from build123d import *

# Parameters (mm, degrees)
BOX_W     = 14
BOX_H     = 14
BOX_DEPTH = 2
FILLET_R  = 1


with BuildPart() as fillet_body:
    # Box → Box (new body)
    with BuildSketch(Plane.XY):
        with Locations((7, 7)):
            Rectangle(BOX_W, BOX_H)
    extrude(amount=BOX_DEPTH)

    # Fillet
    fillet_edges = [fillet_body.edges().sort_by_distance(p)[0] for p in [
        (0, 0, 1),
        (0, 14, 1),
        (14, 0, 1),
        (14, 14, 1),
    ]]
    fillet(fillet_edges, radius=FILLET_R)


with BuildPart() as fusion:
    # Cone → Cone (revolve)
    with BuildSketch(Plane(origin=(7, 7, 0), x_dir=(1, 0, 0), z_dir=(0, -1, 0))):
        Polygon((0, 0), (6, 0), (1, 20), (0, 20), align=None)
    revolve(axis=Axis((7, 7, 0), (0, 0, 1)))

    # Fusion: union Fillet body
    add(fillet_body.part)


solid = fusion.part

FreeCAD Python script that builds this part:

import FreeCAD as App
import Part
import Sketcher

V = App.Vector


def edges_at(feature, points):
    """Names of the edges that pass closest to the given points."""
    edges = feature.Shape.Edges
    near = lambda p: min(range(len(edges)), key=lambda i: edges[i].distToShape(Part.Vertex(*p))[0])
    return sorted({f"Edge{near(p) + 1}" for p in points})


def add_polygon(sketch, points):
    """Adds a closed chain of lines whose ends are joined by coincident constraints."""
    first, n = sketch.GeometryCount, len(points)
    for a, b in zip(points, points[1:] + points[:1]):
        sketch.addGeometry(Part.LineSegment(App.Vector(*a, 0), App.Vector(*b, 0)), False)
    for i in range(n):
        sketch.addConstraint(Sketcher.Constraint("Coincident", first + i, 2, first + (i + 1) % n, 1))

doc = App.newDocument("Part")
body = doc.addObject("PartDesign::Body", "Body")

sketch1 = body.newObject("Sketcher::SketchObject", "Sketch")
sketch1.AttachmentSupport = (doc.getObject("XY_Plane"), [""])
sketch1.MapMode = "FlatFace"
add_polygon(sketch1, [(0, 14), (0, 0), (14, 0), (14, 14)])
sketch1.addConstraint(Sketcher.Constraint("Vertical", 0))
sketch1.addConstraint(Sketcher.Constraint("Horizontal", 1))
sketch1.addConstraint(Sketcher.Constraint("Vertical", 2))
sketch1.addConstraint(Sketcher.Constraint("Horizontal", 3))
sketch1.addConstraint(Sketcher.Constraint("Coincident", 0, 2, -1, 1))
sketch1.addConstraint(Sketcher.Constraint("Equal", 3, 0))
sketch1.addConstraint(Sketcher.Constraint("DistanceX", 1, 1, 1, 2, 14.0))
pad1 = body.newObject("PartDesign::Pad", "Pad")
pad1.Profile = sketch1
pad1.Length = 2
doc.recompute()

fillet = body.newObject("PartDesign::Fillet", "Fillet")
fillet.Base = (pad1, edges_at(pad1, [
    (0, 0, 1),
    (0, 14, 1),
    (14, 0, 1),
    (14, 14, 1),
]))
fillet.Radius = 1
body2 = doc.addObject("PartDesign::Body", "Body001")

sketch2 = body2.newObject("Sketcher::SketchObject", "Sketch001")
sketch2.AttachmentSupport = (doc.getObject("XZ_Plane001"), [""])
sketch2.MapMode = "FlatFace"
sketch2.AttachmentOffset = App.Placement(V(0, 0, -7), App.Rotation())
add_polygon(sketch2, [(7, 0), (13, 0), (8, 20), (7, 20)])
sketch2.addGeometry(Part.LineSegment(V(7, 0, 0), V(7, 20, 0)), True)
sketch2.addConstraint(Sketcher.Constraint("Horizontal", 0))
sketch2.addConstraint(Sketcher.Constraint("Horizontal", 2))
sketch2.addConstraint(Sketcher.Constraint("Vertical", 3))
sketch2.addConstraint(Sketcher.Constraint("Vertical", 4))
sketch2.addConstraint(Sketcher.Constraint("Coincident", 4, 1, 3, 2))
sketch2.addConstraint(Sketcher.Constraint("PointOnObject", 0, 2, -1))
sketch2.addConstraint(Sketcher.Constraint("Horizontal", 1, 2, 4, 2))
sketch2.addConstraint(Sketcher.Constraint("DistanceX", 0, 1, 0, 2, 6.0))
sketch2.addConstraint(Sketcher.Constraint("DistanceX", 2, 2, 2, 1, 1.0))
sketch2.addConstraint(Sketcher.Constraint("DistanceY", 3, 2, 3, 1, 20.0))
sketch2.addConstraint(Sketcher.Constraint("DistanceX", -1, 1, 0, 2, 13.0))
revolution = body2.newObject("PartDesign::Revolution", "Revolution")
revolution.Profile = sketch2
revolution.ReferenceAxis = (sketch2, ["Axis0"])
revolution.Angle = 360
doc.recompute()

boolean = body2.newObject("PartDesign::Boolean", "Boolean")
boolean.Type = "Fuse"
boolean.addObjects([body])

doc.recompute()
